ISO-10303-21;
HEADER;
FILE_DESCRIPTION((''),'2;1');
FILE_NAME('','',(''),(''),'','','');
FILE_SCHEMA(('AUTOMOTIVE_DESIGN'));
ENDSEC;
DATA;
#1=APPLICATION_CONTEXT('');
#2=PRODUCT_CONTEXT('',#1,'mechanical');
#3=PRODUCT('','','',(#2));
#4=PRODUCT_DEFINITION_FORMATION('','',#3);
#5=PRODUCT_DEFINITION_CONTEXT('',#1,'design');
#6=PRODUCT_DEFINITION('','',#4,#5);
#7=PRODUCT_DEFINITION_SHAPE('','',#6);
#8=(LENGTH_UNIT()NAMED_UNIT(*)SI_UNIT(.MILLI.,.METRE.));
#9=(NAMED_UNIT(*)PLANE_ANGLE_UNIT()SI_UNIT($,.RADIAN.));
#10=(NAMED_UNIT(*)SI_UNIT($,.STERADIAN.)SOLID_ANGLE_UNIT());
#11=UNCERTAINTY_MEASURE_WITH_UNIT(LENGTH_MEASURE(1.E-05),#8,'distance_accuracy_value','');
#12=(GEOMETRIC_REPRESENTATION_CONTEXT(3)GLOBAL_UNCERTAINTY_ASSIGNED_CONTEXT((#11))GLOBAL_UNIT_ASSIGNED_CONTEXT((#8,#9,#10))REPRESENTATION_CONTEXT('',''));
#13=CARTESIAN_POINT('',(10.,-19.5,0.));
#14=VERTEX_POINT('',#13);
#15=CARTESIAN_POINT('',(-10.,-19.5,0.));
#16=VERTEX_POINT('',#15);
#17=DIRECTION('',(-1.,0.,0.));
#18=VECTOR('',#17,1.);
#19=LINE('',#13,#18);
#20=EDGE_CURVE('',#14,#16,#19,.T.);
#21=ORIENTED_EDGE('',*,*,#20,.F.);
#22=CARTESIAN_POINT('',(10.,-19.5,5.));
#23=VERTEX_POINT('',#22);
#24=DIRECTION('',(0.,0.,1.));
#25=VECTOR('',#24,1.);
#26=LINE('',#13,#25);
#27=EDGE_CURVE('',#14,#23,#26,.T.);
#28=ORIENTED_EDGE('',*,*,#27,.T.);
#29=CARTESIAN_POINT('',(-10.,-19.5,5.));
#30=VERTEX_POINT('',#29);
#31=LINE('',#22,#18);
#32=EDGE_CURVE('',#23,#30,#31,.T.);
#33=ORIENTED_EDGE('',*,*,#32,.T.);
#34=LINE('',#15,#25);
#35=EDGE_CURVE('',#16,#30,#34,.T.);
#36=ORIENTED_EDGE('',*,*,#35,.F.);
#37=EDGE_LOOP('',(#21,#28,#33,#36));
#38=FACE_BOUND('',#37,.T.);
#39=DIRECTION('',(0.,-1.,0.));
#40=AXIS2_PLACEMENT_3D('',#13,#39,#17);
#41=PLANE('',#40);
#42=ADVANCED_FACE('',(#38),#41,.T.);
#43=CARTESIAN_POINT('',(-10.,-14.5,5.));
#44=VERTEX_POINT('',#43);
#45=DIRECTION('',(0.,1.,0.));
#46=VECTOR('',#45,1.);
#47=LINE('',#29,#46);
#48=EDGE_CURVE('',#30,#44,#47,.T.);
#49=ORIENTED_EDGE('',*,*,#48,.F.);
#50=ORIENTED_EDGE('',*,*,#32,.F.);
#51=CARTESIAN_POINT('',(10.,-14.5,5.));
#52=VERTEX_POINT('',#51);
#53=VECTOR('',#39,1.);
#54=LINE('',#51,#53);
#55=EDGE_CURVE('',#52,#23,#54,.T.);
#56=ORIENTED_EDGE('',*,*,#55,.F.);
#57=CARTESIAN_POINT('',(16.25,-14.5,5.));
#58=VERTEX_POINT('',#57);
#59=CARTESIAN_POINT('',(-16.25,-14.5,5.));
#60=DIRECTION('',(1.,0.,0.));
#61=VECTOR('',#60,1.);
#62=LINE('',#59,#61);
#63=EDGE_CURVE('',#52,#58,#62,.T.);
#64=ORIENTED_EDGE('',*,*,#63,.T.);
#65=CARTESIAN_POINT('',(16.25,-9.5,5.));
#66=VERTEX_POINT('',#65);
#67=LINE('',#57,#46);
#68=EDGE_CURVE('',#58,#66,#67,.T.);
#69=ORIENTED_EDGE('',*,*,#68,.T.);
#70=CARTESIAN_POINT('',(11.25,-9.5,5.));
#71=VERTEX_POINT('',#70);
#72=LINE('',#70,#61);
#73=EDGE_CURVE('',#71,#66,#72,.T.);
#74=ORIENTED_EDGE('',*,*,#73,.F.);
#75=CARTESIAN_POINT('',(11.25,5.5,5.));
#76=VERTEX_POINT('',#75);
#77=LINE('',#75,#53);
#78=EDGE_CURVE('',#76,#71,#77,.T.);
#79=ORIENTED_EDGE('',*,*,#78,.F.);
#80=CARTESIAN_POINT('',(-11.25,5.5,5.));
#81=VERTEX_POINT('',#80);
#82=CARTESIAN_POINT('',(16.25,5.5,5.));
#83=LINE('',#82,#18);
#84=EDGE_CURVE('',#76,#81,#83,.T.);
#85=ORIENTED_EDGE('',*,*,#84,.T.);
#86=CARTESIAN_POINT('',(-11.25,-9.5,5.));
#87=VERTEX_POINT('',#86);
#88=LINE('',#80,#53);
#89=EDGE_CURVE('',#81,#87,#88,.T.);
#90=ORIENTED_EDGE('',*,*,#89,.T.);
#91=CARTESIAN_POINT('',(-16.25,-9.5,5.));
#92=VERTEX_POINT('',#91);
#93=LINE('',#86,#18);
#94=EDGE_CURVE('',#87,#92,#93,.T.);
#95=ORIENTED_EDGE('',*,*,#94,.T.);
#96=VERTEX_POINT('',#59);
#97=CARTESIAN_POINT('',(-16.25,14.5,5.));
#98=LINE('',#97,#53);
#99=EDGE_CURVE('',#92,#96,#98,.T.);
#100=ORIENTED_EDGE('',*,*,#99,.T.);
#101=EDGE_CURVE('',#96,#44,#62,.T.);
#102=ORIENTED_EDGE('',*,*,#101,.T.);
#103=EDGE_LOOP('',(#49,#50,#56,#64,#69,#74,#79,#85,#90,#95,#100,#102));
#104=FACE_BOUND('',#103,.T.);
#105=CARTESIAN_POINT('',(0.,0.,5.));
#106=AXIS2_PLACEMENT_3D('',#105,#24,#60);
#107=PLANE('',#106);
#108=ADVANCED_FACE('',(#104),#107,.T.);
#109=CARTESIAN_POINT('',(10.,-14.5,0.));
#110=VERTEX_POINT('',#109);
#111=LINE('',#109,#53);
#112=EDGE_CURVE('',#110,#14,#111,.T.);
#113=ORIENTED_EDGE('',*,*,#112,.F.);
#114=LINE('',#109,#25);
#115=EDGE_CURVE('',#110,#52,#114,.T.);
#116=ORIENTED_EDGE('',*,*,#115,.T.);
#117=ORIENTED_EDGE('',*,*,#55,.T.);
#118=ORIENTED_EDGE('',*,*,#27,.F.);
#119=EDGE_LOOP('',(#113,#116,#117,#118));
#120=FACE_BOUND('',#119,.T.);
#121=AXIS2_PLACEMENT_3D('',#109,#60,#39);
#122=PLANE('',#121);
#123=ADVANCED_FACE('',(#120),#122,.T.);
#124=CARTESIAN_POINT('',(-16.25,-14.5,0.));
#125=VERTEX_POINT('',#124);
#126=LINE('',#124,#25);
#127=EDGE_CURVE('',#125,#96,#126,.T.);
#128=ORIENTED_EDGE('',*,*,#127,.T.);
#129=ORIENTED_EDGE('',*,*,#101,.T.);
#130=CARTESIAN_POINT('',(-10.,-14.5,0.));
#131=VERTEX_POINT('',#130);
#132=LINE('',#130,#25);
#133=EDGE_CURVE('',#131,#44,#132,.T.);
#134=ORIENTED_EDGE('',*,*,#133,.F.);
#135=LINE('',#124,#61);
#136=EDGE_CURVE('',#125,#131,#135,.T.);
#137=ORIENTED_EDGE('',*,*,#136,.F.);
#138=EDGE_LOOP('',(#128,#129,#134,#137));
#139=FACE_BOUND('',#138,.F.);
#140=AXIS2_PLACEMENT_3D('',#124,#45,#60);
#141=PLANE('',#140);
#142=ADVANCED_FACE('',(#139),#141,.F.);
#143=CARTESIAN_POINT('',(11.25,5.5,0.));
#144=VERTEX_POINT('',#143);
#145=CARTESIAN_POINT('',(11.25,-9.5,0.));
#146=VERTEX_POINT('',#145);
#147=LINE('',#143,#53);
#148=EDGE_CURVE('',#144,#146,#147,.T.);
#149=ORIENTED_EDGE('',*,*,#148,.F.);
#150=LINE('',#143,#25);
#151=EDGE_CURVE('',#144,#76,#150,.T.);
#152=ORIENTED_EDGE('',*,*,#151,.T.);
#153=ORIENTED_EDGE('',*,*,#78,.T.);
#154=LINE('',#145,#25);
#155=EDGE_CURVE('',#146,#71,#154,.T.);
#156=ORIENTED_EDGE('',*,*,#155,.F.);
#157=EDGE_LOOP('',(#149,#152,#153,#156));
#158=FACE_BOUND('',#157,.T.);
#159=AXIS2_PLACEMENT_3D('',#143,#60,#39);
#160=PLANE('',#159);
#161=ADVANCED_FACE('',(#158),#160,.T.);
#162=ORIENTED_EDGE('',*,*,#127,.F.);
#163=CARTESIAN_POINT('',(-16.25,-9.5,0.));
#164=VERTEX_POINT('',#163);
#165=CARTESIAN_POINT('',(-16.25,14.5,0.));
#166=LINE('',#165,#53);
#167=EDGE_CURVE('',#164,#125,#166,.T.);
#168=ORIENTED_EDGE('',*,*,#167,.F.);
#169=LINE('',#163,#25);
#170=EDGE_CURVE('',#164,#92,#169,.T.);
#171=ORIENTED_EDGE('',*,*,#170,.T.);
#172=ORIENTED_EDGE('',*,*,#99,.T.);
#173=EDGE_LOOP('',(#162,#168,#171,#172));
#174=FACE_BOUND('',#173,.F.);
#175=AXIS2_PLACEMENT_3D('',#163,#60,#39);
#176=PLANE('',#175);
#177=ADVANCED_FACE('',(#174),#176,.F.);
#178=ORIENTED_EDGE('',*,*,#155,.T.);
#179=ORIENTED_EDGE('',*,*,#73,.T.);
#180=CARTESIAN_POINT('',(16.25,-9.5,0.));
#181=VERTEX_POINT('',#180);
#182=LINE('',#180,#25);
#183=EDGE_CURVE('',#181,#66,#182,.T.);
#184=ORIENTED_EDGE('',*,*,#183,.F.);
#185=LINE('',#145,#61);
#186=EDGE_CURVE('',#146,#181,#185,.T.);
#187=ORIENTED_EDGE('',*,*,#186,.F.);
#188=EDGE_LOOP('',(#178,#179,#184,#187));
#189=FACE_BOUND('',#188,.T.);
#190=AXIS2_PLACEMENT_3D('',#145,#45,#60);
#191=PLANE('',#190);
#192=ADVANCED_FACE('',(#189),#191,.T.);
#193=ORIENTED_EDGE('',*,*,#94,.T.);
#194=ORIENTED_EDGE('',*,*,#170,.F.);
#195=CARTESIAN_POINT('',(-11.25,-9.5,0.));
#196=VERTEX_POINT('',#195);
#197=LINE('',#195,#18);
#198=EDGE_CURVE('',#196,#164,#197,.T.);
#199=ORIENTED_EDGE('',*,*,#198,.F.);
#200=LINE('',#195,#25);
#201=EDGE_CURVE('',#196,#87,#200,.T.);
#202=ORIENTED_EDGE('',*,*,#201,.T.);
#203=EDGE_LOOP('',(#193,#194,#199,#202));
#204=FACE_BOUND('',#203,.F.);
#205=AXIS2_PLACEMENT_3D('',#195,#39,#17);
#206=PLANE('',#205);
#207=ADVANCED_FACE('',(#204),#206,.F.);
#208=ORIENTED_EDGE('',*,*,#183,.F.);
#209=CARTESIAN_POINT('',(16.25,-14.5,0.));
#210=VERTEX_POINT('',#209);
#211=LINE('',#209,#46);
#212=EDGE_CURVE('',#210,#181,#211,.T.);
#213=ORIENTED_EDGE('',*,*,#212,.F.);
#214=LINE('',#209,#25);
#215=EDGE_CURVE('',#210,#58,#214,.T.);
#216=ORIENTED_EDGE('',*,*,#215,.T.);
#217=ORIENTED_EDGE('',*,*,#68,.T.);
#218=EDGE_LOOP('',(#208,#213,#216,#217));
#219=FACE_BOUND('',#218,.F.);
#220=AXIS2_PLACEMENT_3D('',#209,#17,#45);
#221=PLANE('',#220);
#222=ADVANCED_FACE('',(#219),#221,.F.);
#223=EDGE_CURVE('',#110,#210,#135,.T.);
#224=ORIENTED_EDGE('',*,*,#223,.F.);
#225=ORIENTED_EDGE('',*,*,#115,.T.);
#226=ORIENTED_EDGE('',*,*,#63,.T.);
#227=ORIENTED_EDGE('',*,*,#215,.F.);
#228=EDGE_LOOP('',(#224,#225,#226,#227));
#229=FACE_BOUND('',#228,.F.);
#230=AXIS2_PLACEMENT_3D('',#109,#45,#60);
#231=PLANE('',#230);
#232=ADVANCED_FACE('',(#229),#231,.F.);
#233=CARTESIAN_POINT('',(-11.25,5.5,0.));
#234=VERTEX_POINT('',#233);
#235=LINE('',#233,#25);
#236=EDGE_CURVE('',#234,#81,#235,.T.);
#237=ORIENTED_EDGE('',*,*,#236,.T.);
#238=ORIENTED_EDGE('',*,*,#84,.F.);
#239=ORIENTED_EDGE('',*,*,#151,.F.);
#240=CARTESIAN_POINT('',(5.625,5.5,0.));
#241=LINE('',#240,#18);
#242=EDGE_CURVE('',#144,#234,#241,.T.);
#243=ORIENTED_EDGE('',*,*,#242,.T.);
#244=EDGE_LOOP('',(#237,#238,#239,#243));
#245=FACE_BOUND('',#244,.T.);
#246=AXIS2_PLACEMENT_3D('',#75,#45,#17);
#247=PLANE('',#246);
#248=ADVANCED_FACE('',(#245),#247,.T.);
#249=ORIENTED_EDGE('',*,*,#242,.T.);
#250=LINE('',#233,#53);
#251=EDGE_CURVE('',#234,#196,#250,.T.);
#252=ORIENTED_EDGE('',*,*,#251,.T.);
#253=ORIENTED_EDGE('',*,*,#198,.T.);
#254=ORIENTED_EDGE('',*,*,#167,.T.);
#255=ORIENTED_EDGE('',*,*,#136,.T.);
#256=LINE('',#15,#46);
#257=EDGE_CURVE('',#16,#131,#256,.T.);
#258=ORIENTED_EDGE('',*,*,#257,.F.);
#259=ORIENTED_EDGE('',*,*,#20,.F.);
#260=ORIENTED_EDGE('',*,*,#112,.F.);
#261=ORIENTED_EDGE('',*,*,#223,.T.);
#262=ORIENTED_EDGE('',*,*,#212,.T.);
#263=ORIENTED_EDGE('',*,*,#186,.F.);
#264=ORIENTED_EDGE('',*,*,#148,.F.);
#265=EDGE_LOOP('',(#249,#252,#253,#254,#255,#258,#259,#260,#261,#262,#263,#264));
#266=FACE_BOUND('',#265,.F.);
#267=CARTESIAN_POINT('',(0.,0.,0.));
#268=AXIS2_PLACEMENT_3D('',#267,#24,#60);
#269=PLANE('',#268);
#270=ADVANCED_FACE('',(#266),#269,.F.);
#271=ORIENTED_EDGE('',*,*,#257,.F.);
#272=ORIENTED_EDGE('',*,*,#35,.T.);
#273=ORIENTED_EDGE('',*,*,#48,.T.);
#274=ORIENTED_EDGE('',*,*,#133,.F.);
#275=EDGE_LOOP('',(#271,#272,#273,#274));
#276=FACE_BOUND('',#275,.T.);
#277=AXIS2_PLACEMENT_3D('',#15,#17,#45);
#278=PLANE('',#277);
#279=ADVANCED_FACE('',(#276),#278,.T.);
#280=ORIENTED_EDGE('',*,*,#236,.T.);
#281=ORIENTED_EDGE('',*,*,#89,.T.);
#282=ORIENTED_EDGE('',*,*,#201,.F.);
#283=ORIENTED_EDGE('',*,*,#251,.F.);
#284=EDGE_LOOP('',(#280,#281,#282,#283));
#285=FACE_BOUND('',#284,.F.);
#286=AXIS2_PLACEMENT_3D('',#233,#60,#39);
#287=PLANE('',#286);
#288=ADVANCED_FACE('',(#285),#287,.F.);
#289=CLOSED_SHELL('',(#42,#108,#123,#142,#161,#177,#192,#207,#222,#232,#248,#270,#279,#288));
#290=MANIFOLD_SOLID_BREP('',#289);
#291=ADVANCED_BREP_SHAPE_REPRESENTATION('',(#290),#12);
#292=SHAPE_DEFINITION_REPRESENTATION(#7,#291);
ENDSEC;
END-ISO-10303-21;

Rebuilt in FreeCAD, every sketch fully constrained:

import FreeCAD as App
import Part
import Sketcher

doc = App.newDocument("Part")
body = doc.addObject("PartDesign::Body", "Body")

# Sketch on XY plane
sketch1 = body.newObject("Sketcher::SketchObject", "Sketch")
sketch1.AttachmentSupport = (doc.getObject("XY_Plane"), [""])
sketch1.MapMode = "FlatFace"
sketch1.addGeometry([
    Part.LineSegment(App.Vector(-16, -10, 0), App.Vector(-16, -14, 0)),  # 0
    Part.LineSegment(App.Vector(-16, -14, 0), App.Vector(-10, -14, 0)),  # 1
    Part.LineSegment(App.Vector(-10, -14, 0), App.Vector(-10, -20, 0)),  # 2
    Part.LineSegment(App.Vector(-10, -20, 0), App.Vector(10, -20, 0)),  # 3
    Part.LineSegment(App.Vector(10, -20, 0), App.Vector(10, -14, 0)),  # 4
    Part.LineSegment(App.Vector(10, -14, 0), App.Vector(16, -14, 0)),  # 5
    Part.LineSegment(App.Vector(16, -14, 0), App.Vector(16, -10, 0)),  # 6
    Part.LineSegment(App.Vector(16, -10, 0), App.Vector(11, -10, 0)),  # 7
    Part.LineSegment(App.Vector(11, -10, 0), App.Vector(11, 6, 0)),  # 8
    Part.LineSegment(App.Vector(11, 6, 0), App.Vector(16, 6, 0)),  # 9
    Part.LineSegment(App.Vector(16, 6, 0), App.Vector(16, 14, 0)),  # 10
    Part.LineSegment(App.Vector(16, 14, 0), App.Vector(-16, 14, 0)),  # 11
    Part.LineSegment(App.Vector(-16, 14, 0), App.Vector(-16, 6, 0)),  # 12
    Part.LineSegment(App.Vector(-16, 6, 0), App.Vector(-11, 6, 0)),  # 13
    Part.LineSegment(App.Vector(-11, 6, 0), App.Vector(-11, -10, 0)),  # 14
    Part.LineSegment(App.Vector(-11, -10, 0), App.Vector(-16, -10, 0)),  # 15
], False)
sketch1.addConstraint([
    Sketcher.Constraint("Coincident", 0, 2, 1, 1),
    Sketcher.Constraint("Coincident", 1, 2, 2, 1),
    Sketcher.Constraint("Coincident", 2, 2, 3, 1),
    Sketcher.Constraint("Coincident", 3, 2, 4, 1),
    Sketcher.Constraint("Coincident", 4, 2, 5, 1),
    Sketcher.Constraint("Coincident", 5, 2, 6, 1),
    Sketcher.Constraint("Coincident", 6, 2, 7, 1),
    Sketcher.Constraint("Coincident", 7, 2, 8, 1),
    Sketcher.Constraint("Coincident", 8, 2, 9, 1),
    Sketcher.Constraint("Coincident", 9, 2, 10, 1),
    Sketcher.Constraint("Coincident", 10, 2, 11, 1),
    Sketcher.Constraint("Coincident", 11, 2, 12, 1),
    Sketcher.Constraint("Coincident", 12, 2, 13, 1),
    Sketcher.Constraint("Coincident", 13, 2, 14, 1),
    Sketcher.Constraint("Coincident", 14, 2, 15, 1),
    Sketcher.Constraint("Coincident", 15, 2, 0, 1),
    Sketcher.Constraint("Vertical", 0),
    Sketcher.Constraint("Horizontal", 1),
    Sketcher.Constraint("Vertical", 2),
    Sketcher.Constraint("Horizontal", 3),
    Sketcher.Constraint("Vertical", 4),
    Sketcher.Constraint("Horizontal", 5),
    Sketcher.Constraint("Vertical", 6),
    Sketcher.Constraint("Horizontal", 7),
    Sketcher.Constraint("Vertical", 8),
    Sketcher.Constraint("Horizontal", 9),
    Sketcher.Constraint("Vertical", 10),
    Sketcher.Constraint("Horizontal", 11),
    Sketcher.Constraint("Vertical", 12),
    Sketcher.Constraint("Horizontal", 13),
    Sketcher.Constraint("Vertical", 14),
    Sketcher.Constraint("Horizontal", 15),
    Sketcher.Constraint("Symmetric", 0, 2, 10, 2, -1, 1),
    Sketcher.Constraint("Symmetric", 5, 2, 11, 2, -1, 1),
    Sketcher.Constraint("Symmetric", 9, 2, 12, 2, -2),
    Sketcher.Constraint("Symmetric", 7, 2, 14, 2, -2),
    Sketcher.Constraint("Equal", 1, 5),
    Sketcher.Constraint("Equal", 15, 0),
    Sketcher.Constraint("Equal", 0, 2),
    Sketcher.Constraint("DistanceX", 3, 1, 3, 2, 20.0),
    Sketcher.Constraint("DistanceX", 7, 2, 7, 1, 5.0),
    Sketcher.Constraint("DistanceY", 8, 1, 8, 2, 15.0),
    Sketcher.Constraint("DistanceY", 10, 1, 10, 2, 9.0),
    Sketcher.Constraint("DistanceX", 11, 2, 11, 1, 32.5),
])
pad1 = body.newObject("PartDesign::Pad", "Pad")
pad1.Profile = sketch1
pad1.Length = 5

# Sketch on XY plane
sketch2 = body.newObject("Sketcher::SketchObject", "Sketch001")
sketch2.AttachmentSupport = (doc.getObject("XY_Plane"), [""])
sketch2.MapMode = "FlatFace"
sketch2.AttachmentOffset = App.Placement(App.Vector(0, 0, 5), App.Rotation())
sketch2.addGeometry([
    Part.LineSegment(App.Vector(16, 14, 0), App.Vector(-16, 14, 0)),
    Part.LineSegment(App.Vector(-16, 14, 0), App.Vector(-16, 6, 0)),
    Part.LineSegment(App.Vector(-16, 6, 0), App.Vector(16, 6, 0)),
    Part.LineSegment(App.Vector(16, 6, 0), App.Vector(16, 14, 0)),
], False)
sketch2.addConstraint([
    Sketcher.Constraint("Coincident", 0, 2, 1, 1),
    Sketcher.Constraint("Coincident", 1, 2, 2, 1),
    Sketcher.Constraint("Coincident", 2, 2, 3, 1),
    Sketcher.Constraint("Coincident", 3, 2, 0, 1),
    Sketcher.Constraint("Horizontal", 0),
    Sketcher.Constraint("Vertical", 1),
    Sketcher.Constraint("Horizontal", 2),
    Sketcher.Constraint("Vertical", 3),
    Sketcher.Constraint("DistanceY", 1, 2, 1, 1, 9.0),
    Sketcher.Constraint("DistanceX", 0, 2, 0, 1, 32.5),
    Sketcher.Constraint("DistanceY", -1, 1, 0, 2, 14.5),
    Sketcher.Constraint("DistanceX", 0, 2, -1, 1, 16.25),
])
pocket1 = body.newObject("PartDesign::Pocket", "Pocket")
pocket1.Profile = sketch2
pocket1.Length = 10

doc.recompute()
